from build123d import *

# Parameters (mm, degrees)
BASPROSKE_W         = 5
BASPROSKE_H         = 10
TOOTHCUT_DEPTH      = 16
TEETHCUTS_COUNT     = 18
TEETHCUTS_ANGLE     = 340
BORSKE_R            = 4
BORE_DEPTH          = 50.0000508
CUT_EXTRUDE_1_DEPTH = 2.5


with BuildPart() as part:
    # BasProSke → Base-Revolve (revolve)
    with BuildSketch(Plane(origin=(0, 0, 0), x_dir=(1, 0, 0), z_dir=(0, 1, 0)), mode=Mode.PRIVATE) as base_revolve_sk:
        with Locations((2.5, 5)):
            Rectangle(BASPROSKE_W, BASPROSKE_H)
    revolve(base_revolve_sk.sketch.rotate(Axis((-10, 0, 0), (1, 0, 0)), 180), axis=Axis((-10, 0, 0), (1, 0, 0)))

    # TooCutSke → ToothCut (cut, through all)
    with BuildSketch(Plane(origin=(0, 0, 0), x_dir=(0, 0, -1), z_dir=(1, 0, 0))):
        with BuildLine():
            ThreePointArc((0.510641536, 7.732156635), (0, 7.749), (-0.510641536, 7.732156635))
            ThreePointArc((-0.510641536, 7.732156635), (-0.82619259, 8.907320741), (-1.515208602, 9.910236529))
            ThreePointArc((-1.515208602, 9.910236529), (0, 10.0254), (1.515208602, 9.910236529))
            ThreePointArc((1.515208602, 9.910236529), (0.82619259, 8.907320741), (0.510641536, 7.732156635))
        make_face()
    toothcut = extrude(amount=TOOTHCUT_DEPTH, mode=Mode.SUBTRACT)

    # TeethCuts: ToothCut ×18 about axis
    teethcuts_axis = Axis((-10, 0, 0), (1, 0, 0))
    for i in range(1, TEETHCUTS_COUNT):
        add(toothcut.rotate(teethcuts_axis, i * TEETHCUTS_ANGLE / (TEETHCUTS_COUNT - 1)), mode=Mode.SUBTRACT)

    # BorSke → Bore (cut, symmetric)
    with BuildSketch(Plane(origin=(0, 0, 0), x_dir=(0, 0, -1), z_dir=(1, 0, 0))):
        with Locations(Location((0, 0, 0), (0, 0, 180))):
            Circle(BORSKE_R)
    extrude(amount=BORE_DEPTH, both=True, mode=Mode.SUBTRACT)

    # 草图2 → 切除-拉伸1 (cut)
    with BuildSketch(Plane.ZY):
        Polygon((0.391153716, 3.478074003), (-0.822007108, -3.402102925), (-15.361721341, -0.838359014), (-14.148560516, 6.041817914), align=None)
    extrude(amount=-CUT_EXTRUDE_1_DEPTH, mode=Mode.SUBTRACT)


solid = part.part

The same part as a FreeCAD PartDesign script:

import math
import FreeCAD as App
import Part
import Sketcher

V = App.Vector
Q = App.Units.Quantity


def add_polygon(sketch, points):
    """Adds a closed chain of lines whose ends are joined by coincident constraints."""
    first, n = sketch.GeometryCount, len(points)
    for a, b in zip(points, points[1:] + points[:1]):
        sketch.addGeometry(Part.LineSegment(App.Vector(*a, 0), App.Vector(*b, 0)), False)
    for i in range(n):
        sketch.addConstraint(Sketcher.Constraint("Coincident", first + i, 2, first + (i + 1) % n, 1))

doc = App.newDocument("Part")
body = doc.addObject("PartDesign::Body", "Body")

# Sketch on XZ plane
sketch1 = body.newObject("Sketcher::SketchObject", "Sketch")
sketch1.AttachmentSupport = (doc.getObject("XZ_Plane"), [""])
sketch1.MapMode = "FlatFace"
add_polygon(sketch1, [(0, -10), (0, 0), (5, 0), (5, -10)])  # lines 0-3
sketch1.addConstraint([
    Sketcher.Constraint("Vertical", 0),
    Sketcher.Constraint("Horizontal", 1),
    Sketcher.Constraint("Vertical", 2),
    Sketcher.Constraint("Horizontal", 3),
    Sketcher.Constraint("Coincident", 0, 2, -1, 1),
    Sketcher.Constraint("DistanceX", 1, 1, 1, 2, Q("5 mm")),
    Sketcher.Constraint("DistanceY", 0, 1, 0, 2, Q("10 mm")),
])
revolution = body.newObject("PartDesign::Revolution", "Revolution")
revolution.Profile = sketch1
revolution.ReferenceAxis = (sketch1, ["H_Axis"])
revolution.Angle = 360

# Sketch on YZ plane
sketch2 = body.newObject("Sketcher::SketchObject", "Sketch001")
sketch2.AttachmentSupport = (doc.getObject("YZ_Plane"), [""])
sketch2.MapMode = "FlatFace"
sketch2.addGeometry([
    Part.ArcOfCircle(Part.Circle(V(0, 0, 0), V(0, 0, 1), 7.7), math.radians(-3.78), math.radians(3.78)),
    Part.ArcOfCircle(Part.Circle(V(7.4, -4.1, 0), V(0, 0, 1), 3.6), math.radians(46), math.radians(85)),
    Part.ArcOfCircle(Part.Circle(V(0, 0, 0), V(0, 0, 1), 10), math.radians(-8.69), math.radians(8.69)),
    Part.ArcOfCircle(Part.Circle(V(7.4, 4.1, 0), V(0, 0, 1), 3.6), math.radians(-85), math.radians(-46)),
], False)
sketch2.addConstraint([
    Sketcher.Constraint("Coincident", 0, 1, 1, 2),
    Sketcher.Constraint("Coincident", 1, 1, 2, 1),
    Sketcher.Constraint("Coincident", 2, 2, 3, 2),
    Sketcher.Constraint("Coincident", 3, 1, 0, 2),
    Sketcher.Constraint("Coincident", 0, 3, -1, 1),
    Sketcher.Constraint("Coincident", 2, 3, -1, 1),
    Sketcher.Constraint("Equal", 1, 3),
    Sketcher.Constraint("Symmetric", 1, 3, 3, 3, -1),
    Sketcher.Constraint("Radius", 1, Q("3.6 mm")),
    Sketcher.Constraint("Radius", 0, Q("7.749 mm")),
    Sketcher.Constraint("Radius", 2, Q("10.0254 mm")),
    Sketcher.Constraint("DistanceX", -1, 1, 1, 3, Q("7.399578 mm")),
    Sketcher.Constraint("DistanceY", 0, 1, -1, 1, Q("0.510642 mm")),
])
pocket1 = body.newObject("PartDesign::Pocket", "Pocket")
pocket1.Profile = sketch2
pocket1.Type = "ThroughAll"
pocket1.Reversed = True
doc.recompute()

polarpattern = body.newObject("PartDesign::PolarPattern", "PolarPattern")
polarpattern.Originals = [pocket1]
polarpattern.Axis = (doc.getObject("X_Axis"), [""])
polarpattern.Angle = 360
polarpattern.Occurrences = 18
body.Tip = polarpattern

# Sketch on YZ plane
sketch3 = body.newObject("Sketcher::SketchObject", "Sketch002")
sketch3.AttachmentSupport = (doc.getObject("YZ_Plane"), [""])
sketch3.MapMode = "FlatFace"
sketch3.addGeometry(Part.Circle(V(0, 0, 0), V(0, 0, 1), 4), False)
sketch3.addConstraint([
    Sketcher.Constraint("Coincident", 0, 3, -1, 1),
    Sketcher.Constraint("Diameter", 0, Q("8 mm")),
])
pocket2 = body.newObject("PartDesign::Pocket", "Pocket001")
pocket2.Profile = sketch3
pocket2.Length = 100.000102
pocket2.Midplane = True

# Sketch on YZ plane
sketch4 = body.newObject("Sketcher::SketchObject", "Sketch003")
sketch4.AttachmentSupport = (doc.getObject("YZ_Plane"), [""])
sketch4.MapMode = "FlatFace"
add_polygon(sketch4, [(-3.402103, -0.822007), (3.478074, 0.391154), (6.041818, -14.148561), (-0.838359, -15.361721)])  # lines 0-3
sketch4.addConstraint([
    Sketcher.Constraint("DistanceY", 1, 2, -1, 1, Q("14.148561 mm")),
    Sketcher.Constraint("DistanceX", 2, 2, -1, 1, Q("0.838359 mm")),
    Sketcher.Constraint("DistanceY", 2, 2, -1, 1, Q("15.361721 mm")),
    Sketcher.Constraint("DistanceY", 3, 2, 0, 2, Q("1.213161 mm")),
    Sketcher.Constraint("DistanceX", 3, 2, 1, 2, Q("9.443921 mm")),
    Sketcher.Constraint("Distance", 0, Q("6.986315 mm")),
    Sketcher.Constraint("Distance", 1, Q("14.764013 mm")),
    Sketcher.Constraint("Distance", 2, Q("6.986315 mm")),
])
pocket3 = body.newObject("PartDesign::Pocket", "Pocket002")
pocket3.Profile = sketch4
pocket3.Length = 2.5
pocket3.Reversed = True

doc.recompute()
